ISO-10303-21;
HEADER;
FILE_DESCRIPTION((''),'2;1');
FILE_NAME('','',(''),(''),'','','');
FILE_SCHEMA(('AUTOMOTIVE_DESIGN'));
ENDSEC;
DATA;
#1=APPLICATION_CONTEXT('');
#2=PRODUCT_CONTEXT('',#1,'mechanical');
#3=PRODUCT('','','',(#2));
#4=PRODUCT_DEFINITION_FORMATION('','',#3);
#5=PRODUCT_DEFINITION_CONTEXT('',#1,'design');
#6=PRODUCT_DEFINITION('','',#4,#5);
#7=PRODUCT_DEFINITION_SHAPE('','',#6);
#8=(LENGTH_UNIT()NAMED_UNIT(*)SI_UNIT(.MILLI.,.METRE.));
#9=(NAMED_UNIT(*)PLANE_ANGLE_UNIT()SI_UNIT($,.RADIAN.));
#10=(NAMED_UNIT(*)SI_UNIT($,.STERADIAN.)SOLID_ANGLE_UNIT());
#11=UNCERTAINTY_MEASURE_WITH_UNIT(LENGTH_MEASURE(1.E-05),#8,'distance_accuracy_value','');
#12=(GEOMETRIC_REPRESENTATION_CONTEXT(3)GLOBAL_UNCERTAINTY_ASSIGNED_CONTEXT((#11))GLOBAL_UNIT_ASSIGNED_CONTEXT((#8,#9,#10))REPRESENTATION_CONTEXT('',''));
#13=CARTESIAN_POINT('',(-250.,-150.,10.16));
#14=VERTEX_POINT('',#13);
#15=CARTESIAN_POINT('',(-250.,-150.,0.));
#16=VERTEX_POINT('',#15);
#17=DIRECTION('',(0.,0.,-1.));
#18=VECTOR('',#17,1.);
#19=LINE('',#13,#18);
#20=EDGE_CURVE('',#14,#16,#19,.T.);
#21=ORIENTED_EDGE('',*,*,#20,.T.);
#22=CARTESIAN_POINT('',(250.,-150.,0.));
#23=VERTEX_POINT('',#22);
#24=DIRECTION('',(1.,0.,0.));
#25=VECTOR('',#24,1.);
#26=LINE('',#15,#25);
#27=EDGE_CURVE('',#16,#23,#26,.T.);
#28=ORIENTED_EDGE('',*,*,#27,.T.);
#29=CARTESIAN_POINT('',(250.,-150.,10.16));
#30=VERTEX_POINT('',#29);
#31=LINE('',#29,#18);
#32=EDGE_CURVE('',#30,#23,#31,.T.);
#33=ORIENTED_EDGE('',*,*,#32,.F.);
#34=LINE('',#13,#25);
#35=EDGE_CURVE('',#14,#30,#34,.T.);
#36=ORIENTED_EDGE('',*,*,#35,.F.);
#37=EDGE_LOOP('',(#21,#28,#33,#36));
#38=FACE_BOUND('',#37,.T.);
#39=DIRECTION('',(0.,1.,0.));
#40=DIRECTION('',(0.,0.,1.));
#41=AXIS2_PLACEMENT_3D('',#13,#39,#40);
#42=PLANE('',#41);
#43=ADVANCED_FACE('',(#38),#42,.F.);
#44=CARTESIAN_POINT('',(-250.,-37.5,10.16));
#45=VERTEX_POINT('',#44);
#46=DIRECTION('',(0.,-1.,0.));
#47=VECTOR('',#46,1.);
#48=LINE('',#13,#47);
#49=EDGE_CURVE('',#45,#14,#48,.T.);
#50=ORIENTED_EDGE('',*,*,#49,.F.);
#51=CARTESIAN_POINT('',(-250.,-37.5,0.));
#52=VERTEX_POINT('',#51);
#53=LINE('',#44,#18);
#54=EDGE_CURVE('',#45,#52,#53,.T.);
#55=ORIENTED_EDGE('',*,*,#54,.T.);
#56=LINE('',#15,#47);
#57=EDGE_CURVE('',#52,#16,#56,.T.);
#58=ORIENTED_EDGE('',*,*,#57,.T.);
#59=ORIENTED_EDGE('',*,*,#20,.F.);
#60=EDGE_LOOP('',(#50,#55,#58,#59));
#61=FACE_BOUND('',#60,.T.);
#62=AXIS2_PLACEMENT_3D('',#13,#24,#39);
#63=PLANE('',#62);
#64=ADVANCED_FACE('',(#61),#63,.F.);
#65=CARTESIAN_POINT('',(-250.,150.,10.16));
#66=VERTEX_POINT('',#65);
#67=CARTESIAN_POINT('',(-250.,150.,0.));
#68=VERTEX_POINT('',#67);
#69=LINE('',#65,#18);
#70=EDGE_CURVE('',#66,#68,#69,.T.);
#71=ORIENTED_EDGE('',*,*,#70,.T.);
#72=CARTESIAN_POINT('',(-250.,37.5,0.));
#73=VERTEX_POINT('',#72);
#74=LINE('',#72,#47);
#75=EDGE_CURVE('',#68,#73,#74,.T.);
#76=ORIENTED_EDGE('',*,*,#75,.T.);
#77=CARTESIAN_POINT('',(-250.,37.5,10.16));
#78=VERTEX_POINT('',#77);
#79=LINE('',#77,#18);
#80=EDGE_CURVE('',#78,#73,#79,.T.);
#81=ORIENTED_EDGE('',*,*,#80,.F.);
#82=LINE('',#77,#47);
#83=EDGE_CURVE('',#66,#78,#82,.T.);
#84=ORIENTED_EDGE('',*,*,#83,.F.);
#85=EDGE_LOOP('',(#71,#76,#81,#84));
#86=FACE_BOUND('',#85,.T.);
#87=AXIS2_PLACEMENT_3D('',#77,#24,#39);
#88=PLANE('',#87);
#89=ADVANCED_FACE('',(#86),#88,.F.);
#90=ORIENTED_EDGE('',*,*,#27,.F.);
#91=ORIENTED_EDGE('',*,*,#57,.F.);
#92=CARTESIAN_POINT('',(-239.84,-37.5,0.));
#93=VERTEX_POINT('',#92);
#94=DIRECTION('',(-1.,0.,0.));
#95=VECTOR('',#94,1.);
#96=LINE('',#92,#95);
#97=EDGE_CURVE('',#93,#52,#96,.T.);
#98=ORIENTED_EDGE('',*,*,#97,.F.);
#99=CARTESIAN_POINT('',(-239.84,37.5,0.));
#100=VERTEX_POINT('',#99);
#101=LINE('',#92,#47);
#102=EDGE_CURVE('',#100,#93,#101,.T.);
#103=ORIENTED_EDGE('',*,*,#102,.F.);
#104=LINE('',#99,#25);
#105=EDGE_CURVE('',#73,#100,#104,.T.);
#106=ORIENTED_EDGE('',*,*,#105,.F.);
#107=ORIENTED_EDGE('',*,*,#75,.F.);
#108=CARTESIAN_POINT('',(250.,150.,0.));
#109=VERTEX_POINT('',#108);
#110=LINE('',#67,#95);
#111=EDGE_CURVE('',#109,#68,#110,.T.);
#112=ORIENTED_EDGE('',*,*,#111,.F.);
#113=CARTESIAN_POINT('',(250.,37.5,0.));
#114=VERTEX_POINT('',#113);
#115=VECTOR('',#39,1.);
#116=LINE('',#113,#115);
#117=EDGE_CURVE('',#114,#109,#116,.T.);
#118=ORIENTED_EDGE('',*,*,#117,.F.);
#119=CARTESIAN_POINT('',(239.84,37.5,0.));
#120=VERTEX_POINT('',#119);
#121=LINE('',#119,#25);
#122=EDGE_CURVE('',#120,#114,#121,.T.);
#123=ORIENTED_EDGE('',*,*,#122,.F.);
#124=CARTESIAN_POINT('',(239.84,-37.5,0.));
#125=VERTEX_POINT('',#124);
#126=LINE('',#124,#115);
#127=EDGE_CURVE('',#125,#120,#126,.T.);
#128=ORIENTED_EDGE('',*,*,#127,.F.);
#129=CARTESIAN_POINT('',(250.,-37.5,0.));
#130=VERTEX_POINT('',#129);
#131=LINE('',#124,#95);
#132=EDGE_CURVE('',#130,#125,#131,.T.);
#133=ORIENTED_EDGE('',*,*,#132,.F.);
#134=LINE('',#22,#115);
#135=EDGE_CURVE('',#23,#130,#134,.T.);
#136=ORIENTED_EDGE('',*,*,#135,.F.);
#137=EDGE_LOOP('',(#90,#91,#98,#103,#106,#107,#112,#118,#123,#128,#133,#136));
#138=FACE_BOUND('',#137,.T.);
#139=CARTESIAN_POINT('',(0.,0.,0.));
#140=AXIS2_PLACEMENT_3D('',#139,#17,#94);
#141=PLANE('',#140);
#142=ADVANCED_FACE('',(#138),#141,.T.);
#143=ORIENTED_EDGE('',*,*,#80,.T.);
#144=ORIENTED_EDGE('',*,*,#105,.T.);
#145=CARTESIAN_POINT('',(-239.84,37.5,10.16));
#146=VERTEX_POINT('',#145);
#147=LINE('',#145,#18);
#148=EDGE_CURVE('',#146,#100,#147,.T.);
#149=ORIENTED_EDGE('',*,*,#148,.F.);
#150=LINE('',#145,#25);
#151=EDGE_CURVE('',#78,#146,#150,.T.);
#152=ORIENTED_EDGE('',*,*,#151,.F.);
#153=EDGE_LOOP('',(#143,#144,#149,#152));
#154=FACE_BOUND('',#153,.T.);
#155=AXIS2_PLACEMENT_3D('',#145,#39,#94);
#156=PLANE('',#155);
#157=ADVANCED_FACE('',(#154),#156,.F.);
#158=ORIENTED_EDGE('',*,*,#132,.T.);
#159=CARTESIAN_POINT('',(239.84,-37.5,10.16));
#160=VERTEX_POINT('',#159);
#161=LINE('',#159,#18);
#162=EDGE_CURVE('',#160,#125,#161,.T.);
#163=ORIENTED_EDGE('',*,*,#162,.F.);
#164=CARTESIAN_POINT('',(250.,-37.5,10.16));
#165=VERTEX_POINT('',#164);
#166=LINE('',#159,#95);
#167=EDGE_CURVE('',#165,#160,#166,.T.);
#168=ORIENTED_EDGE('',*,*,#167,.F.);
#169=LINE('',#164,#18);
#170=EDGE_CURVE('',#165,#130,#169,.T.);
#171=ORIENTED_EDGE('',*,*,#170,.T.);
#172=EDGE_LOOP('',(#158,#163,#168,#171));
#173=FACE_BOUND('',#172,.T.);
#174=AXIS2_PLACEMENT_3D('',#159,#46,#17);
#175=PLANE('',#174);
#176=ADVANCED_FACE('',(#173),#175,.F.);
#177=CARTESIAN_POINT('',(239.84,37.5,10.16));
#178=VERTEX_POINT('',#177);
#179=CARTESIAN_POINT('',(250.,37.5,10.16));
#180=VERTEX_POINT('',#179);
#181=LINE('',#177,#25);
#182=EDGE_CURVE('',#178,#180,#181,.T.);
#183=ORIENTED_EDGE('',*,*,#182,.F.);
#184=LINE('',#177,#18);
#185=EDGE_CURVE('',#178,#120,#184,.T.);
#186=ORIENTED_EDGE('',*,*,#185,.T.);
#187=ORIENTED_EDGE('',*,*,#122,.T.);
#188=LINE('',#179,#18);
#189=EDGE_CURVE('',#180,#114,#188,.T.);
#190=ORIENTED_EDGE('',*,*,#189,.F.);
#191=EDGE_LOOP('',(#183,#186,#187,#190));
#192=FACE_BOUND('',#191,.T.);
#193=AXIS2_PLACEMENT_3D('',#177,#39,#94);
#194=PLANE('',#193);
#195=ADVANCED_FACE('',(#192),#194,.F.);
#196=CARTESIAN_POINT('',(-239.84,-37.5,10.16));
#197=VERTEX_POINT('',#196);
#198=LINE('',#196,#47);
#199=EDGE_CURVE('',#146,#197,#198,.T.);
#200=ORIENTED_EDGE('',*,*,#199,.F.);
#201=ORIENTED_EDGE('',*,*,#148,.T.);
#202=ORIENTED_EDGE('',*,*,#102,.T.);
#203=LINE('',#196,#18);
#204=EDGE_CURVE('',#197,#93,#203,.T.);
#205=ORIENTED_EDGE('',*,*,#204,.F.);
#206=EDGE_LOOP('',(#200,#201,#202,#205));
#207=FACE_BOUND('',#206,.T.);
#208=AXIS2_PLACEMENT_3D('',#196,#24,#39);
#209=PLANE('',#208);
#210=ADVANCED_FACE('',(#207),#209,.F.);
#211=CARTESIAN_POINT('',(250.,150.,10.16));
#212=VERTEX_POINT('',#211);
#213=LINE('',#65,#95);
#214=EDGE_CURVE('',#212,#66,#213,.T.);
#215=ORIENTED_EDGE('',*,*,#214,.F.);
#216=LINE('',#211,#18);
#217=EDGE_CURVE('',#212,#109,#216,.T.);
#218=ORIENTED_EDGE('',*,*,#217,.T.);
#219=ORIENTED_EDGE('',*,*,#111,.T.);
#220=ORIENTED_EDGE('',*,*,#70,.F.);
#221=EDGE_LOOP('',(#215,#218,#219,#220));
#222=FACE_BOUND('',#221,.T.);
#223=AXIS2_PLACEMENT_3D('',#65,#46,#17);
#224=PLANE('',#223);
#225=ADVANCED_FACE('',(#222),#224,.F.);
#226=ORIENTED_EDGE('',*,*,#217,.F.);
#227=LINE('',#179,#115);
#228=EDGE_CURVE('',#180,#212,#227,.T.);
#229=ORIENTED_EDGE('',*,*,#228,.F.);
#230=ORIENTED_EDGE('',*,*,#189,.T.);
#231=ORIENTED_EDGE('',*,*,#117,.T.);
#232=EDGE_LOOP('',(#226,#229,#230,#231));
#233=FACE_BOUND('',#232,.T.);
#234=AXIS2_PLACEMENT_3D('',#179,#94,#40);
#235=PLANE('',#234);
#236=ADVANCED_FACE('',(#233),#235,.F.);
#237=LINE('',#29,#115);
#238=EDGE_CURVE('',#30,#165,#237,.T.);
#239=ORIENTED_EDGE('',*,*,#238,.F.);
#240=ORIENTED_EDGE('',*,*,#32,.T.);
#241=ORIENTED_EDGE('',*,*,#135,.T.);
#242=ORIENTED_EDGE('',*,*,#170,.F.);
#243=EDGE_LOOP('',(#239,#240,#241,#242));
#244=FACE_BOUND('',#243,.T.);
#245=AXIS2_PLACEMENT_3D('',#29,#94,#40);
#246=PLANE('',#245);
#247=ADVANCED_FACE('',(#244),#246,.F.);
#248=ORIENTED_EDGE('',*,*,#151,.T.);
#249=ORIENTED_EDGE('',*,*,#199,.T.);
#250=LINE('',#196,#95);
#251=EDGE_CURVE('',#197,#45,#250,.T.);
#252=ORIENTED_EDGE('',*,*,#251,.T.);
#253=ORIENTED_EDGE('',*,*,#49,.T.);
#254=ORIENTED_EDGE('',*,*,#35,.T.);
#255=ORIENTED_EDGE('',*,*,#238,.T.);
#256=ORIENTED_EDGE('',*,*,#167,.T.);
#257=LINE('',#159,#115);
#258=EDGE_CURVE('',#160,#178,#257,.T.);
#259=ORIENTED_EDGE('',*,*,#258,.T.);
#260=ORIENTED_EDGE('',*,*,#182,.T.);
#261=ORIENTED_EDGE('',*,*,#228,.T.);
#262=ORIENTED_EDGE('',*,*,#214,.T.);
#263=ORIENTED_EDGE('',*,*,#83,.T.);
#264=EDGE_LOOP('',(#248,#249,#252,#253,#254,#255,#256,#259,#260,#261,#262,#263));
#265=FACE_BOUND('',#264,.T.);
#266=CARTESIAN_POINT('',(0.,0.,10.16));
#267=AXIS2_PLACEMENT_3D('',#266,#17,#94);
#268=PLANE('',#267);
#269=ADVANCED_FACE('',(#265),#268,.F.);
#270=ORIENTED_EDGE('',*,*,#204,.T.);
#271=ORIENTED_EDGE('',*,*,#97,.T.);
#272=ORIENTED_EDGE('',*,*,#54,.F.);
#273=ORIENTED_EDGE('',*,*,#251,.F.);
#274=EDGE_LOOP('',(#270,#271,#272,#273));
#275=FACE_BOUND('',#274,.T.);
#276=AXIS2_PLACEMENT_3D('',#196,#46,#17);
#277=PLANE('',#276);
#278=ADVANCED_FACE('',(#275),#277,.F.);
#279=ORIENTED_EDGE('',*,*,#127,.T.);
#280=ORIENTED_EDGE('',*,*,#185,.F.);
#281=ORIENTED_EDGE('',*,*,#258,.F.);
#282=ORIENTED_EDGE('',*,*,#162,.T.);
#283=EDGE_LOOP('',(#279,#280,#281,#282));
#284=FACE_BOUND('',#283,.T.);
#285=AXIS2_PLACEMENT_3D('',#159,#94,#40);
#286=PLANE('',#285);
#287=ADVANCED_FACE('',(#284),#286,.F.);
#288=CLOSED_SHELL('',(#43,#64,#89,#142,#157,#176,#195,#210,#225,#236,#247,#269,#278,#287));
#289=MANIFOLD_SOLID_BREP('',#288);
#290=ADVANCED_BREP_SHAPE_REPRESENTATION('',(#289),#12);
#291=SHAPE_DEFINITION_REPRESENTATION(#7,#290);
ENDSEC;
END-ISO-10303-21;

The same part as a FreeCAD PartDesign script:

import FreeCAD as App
import Part
import Sketcher
Q = App.Units.Quantity


def add_polygon(sketch, points):
    """Adds a closed chain of lines whose ends are joined by coincident constraints."""
    first, n = sketch.GeometryCount, len(points)
    for a, b in zip(points, points[1:] + points[:1]):
        sketch.addGeometry(Part.LineSegment(App.Vector(*a, 0), App.Vector(*b, 0)), False)
    for i in range(n):
        sketch.addConstraint(Sketcher.Constraint("Coincident", first + i, 2, first + (i + 1) % n, 1))

doc = App.newDocument("Part")
body = doc.addObject("PartDesign::Body", "Body")

# Sketch on XY plane
sketch1 = body.newObject("Sketcher::SketchObject", "Sketch")
sketch1.AttachmentSupport = (doc.getObject("XY_Plane"), [""])
sketch1.MapMode = "FlatFace"
add_polygon(sketch1, [(-250, -150), (250, -150), (250, -38), (240, -38), (240, 38), (250, 38), (250, 150), (-250, 150), (-250, 38), (-240, 38), (-240, -38), (-250, -38)])  # lines 0-11
sketch1.addConstraint([
    Sketcher.Constraint("Horizontal", 0),
    Sketcher.Constraint("Vertical", 1),
    Sketcher.Constraint("Horizontal", 2),
    Sketcher.Constraint("Vertical", 3),
    Sketcher.Constraint("Horizontal", 4),
    Sketcher.Constraint("Vertical", 5),
    Sketcher.Constraint("Horizontal", 6),
    Sketcher.Constraint("Vertical", 7),
    Sketcher.Constraint("Horizontal", 8),
    Sketcher.Constraint("Vertical", 9),
    Sketcher.Constraint("Horizontal", 10),
    Sketcher.Constraint("Vertical", 11),
    Sketcher.Constraint("Symmetric", 0, 2, 6, 2, -1, 1),
    Sketcher.Constraint("Symmetric", 2, 2, 8, 2, -1, 1),
    Sketcher.Constraint("Symmetric", 4, 2, 10, 2, -1, 1),
    Sketcher.Constraint("Symmetric", 4, 2, 7, 2, -2),
    Sketcher.Constraint("DistanceX", 0, 1, 0, 2, Q("500 mm")),
    Sketcher.Constraint("DistanceY", 3, 1, 3, 2, Q("75 mm")),
    Sketcher.Constraint("DistanceY", 1, 1, 1, 2, Q("112.5 mm")),
    Sketcher.Constraint("DistanceX", 2, 2, 2, 1, Q("10.16 mm")),
])
pad1 = body.newObject("PartDesign::Pad", "Pad")
pad1.Profile = sketch1
pad1.Length = 10.16

doc.recompute()
